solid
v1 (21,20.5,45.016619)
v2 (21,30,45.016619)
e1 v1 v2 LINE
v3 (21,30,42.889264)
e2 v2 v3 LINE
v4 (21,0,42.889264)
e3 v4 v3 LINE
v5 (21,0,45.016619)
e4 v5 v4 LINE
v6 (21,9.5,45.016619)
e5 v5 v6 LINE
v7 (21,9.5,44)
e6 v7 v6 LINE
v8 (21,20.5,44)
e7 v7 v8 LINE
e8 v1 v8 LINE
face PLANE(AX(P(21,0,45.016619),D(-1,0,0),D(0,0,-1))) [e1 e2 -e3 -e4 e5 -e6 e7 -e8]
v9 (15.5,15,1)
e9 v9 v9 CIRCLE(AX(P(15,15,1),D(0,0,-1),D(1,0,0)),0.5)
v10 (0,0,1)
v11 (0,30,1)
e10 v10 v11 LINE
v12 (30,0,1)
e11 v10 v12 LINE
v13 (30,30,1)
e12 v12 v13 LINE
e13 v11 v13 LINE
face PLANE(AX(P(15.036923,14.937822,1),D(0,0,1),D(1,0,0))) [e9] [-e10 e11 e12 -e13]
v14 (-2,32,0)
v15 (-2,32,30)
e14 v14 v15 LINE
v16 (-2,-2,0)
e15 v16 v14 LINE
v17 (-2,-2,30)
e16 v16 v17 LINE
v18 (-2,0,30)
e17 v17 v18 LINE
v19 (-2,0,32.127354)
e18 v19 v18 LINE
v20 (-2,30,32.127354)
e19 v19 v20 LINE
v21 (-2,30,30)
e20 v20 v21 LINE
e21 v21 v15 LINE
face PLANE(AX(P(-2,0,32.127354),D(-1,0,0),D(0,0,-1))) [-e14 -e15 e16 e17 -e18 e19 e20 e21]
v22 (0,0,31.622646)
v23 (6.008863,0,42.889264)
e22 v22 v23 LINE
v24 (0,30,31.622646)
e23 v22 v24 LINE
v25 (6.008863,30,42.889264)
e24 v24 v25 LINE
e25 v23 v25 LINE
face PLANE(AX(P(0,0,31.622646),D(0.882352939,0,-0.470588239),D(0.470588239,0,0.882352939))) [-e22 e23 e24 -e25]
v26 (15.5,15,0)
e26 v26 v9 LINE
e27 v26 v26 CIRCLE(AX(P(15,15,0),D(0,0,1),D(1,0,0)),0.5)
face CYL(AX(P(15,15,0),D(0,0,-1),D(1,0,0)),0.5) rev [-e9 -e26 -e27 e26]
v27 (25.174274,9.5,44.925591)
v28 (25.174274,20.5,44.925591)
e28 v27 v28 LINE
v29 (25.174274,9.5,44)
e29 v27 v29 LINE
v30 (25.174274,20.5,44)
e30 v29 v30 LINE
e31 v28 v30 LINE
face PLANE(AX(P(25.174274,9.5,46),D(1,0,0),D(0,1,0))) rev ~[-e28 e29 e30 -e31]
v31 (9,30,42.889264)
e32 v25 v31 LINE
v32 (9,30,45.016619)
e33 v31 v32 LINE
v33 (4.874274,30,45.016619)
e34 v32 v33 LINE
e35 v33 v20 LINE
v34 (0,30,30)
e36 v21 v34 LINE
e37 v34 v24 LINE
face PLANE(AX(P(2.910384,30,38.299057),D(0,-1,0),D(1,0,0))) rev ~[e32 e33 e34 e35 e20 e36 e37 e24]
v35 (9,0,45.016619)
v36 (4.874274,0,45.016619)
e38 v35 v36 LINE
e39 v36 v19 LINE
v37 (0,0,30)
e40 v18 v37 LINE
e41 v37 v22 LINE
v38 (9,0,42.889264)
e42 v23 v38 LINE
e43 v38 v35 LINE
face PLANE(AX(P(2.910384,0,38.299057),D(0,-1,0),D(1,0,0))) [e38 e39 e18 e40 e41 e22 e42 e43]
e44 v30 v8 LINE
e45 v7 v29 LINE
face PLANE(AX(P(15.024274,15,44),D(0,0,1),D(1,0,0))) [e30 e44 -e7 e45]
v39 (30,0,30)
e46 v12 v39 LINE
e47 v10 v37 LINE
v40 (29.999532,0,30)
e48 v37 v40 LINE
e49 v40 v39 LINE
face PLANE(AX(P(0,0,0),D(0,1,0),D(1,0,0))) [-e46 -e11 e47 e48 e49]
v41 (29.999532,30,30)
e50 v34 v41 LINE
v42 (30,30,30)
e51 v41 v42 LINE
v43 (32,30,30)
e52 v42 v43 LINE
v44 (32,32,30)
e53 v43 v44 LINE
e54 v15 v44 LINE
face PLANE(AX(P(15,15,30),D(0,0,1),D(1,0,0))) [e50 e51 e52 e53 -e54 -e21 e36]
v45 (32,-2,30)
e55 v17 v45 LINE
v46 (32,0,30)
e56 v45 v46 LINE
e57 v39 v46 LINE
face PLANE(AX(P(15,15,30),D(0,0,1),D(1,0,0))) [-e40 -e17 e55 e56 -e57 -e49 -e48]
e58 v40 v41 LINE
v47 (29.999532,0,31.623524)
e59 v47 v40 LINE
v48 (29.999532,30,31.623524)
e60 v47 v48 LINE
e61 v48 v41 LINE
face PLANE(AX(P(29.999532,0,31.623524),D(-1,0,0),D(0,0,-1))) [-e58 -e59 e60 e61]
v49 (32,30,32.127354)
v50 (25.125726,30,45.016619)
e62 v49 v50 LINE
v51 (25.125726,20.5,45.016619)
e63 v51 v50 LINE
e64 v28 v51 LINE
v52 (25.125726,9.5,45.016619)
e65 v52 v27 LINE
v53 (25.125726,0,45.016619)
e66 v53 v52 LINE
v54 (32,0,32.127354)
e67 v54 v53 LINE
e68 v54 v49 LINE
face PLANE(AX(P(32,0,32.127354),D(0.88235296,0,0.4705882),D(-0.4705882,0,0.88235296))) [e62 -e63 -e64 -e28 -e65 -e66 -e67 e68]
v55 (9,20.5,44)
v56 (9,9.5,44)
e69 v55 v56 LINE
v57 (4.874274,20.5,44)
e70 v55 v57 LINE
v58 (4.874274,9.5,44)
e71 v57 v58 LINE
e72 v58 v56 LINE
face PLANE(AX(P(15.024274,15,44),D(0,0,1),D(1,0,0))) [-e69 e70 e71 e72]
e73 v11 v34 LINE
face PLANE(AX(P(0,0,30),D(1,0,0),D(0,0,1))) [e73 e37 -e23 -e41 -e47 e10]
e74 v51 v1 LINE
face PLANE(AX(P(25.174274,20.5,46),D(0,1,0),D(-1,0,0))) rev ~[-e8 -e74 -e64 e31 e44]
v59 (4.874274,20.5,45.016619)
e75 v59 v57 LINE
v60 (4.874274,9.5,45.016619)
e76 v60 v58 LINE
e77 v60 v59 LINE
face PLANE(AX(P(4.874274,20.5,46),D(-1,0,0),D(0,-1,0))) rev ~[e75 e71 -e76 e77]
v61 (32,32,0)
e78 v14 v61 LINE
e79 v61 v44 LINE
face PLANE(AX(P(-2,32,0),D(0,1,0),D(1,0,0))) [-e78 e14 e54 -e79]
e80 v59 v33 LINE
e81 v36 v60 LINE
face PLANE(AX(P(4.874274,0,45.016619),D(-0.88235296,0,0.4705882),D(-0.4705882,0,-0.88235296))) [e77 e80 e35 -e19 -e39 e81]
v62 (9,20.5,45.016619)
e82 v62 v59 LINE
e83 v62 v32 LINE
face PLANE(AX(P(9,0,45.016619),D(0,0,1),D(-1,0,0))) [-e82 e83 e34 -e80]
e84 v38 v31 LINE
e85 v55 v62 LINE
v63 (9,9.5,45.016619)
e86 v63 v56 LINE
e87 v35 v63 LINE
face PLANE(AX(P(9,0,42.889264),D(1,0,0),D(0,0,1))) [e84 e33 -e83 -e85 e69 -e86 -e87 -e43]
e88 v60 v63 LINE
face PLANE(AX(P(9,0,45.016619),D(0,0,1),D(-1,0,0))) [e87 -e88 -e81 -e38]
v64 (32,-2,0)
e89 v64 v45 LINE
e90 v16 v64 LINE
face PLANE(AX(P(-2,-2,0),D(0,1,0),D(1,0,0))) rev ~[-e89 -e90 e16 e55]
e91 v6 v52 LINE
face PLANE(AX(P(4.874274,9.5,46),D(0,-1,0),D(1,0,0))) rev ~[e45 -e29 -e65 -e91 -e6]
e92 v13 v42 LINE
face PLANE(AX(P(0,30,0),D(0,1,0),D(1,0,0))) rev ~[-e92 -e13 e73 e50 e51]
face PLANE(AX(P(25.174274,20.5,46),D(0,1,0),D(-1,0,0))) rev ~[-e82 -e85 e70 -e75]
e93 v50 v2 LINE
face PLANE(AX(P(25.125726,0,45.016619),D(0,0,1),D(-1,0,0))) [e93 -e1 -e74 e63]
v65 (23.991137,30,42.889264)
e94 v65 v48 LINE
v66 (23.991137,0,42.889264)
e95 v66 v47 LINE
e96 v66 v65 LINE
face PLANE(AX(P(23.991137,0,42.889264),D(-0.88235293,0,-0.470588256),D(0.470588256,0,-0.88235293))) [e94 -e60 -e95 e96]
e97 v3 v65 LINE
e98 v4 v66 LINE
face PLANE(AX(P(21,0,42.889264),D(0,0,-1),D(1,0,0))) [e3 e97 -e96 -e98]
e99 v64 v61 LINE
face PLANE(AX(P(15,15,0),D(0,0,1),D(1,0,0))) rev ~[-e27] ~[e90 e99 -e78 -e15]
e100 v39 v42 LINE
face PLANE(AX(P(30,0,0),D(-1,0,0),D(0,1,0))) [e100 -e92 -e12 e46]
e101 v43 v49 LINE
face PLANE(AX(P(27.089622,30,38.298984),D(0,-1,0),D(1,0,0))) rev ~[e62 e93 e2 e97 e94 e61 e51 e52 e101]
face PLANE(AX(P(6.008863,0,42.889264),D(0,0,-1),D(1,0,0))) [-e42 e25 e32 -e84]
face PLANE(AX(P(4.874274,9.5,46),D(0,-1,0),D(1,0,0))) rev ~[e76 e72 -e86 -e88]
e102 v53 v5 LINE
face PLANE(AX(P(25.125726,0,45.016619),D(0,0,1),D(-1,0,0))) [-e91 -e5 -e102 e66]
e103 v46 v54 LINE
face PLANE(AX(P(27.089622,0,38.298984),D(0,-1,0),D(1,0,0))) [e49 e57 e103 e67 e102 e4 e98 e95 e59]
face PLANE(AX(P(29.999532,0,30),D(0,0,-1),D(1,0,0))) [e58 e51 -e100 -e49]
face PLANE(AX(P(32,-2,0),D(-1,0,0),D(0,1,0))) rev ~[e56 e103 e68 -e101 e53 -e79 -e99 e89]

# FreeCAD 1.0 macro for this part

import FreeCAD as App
import Part
import Sketcher


def add_polygon(sketch, points):
    """Adds a closed chain of lines whose ends are joined by coincident constraints."""
    first, n = sketch.GeometryCount, len(points)
    for a, b in zip(points, points[1:] + points[:1]):
        sketch.addGeometry(Part.LineSegment(App.Vector(*a, 0), App.Vector(*b, 0)), False)
    for i in range(n):
        sketch.addConstraint(Sketcher.Constraint("Coincident", first + i, 2, first + (i + 1) % n, 1))

doc = App.newDocument("Part")
params = doc.addObject("Spreadsheet::Sheet", "Params")
for row, (alias, value) in enumerate([
    ("sketch1_width", "34 mm"),
    ("sketch1_width2", "30 mm"),
    ("pad1_length", "30 mm"),
    ("pad2_length", "1 mm"),
    ("sketch3_diameter", "1 mm"),
    ("pocket1_length", "2 mm"),
    ("sketch4_width", "2 mm"),
    ("pad3_length", "30 mm"),
    ("sketch5_height", "11 mm"),
    ("sketch5_width", "20.3 mm"),
    ("pocket2_length", "2 mm"),
], start=1):
    params.set(f"A{row}", alias)
    params.set(f"B{row}", "=" + value)
    params.setAlias(f"B{row}", alias)

body = doc.addObject("PartDesign::Body", "Body")

# Sketch on XY plane
sketch1 = doc.addObject("Sketcher::SketchObject", "Sketch")
body.addObject(sketch1)
sketch1.AttachmentSupport = (doc.XY_Plane, [""])
sketch1.MapMode = "FlatFace"
add_polygon(sketch1, [(-2, 32), (-2, -2), (32, -2), (32, 32)])  # lines 0-3
add_polygon(sketch1, [(30, 0), (0, 0), (0, 30), (30, 30)])  # lines 4-7
sketch1.addConstraint(Sketcher.Constraint("Vertical", 0))
sketch1.addConstraint(Sketcher.Constraint("Horizontal", 1))
sketch1.addConstraint(Sketcher.Constraint("Vertical", 2))
sketch1.addConstraint(Sketcher.Constraint("Horizontal", 3))
sketch1.addConstraint(Sketcher.Constraint("Horizontal", 4))
sketch1.addConstraint(Sketcher.Constraint("Vertical", 5))
sketch1.addConstraint(Sketcher.Constraint("Horizontal", 6))
sketch1.addConstraint(Sketcher.Constraint("Vertical", 7))
sketch1.addConstraint(Sketcher.Constraint("Coincident", 4, 2, -1, 1))
sketch1.addConstraint(Sketcher.Constraint("Equal", 3, 0))
sketch1.addConstraint(Sketcher.Constraint("Equal", 6, 5))
sketch1.addConstraint(Sketcher.Constraint("DistanceX", 1, 1, 1, 2, 34.0))
sketch1.addConstraint(Sketcher.Constraint("DistanceX", 4, 2, 4, 1, 30.0))
sketch1.addConstraint(Sketcher.Constraint("DistanceX", 0, 2, -1, 1, 2.0))
sketch1.addConstraint(Sketcher.Constraint("DistanceY", 0, 2, -1, 1, 2.0))
sketch1.setExpression("Constraints[19]", "Params.sketch1_width")
sketch1.setExpression("Constraints[20]", "Params.sketch1_width2")
pad1 = doc.addObject("PartDesign::Pad", "Pad")
body.addObject(pad1)
pad1.Profile = sketch1
pad1.setExpression("Length", "Params.pad1_length")

# Sketch on XY plane
sketch2 = doc.addObject("Sketcher::SketchObject", "Sketch001")
body.addObject(sketch2)
sketch2.AttachmentSupport = (doc.XY_Plane, [""])
sketch2.MapMode = "FlatFace"
add_polygon(sketch2, [(-1.170261, 30.983938), (-1.170261, -1.108294), (31.244107, -1.108294), (31.244107, 30.983938)])  # lines 0-3
sketch2.addConstraint(Sketcher.Constraint("Vertical", 0))
sketch2.addConstraint(Sketcher.Constraint("Horizontal", 1))
sketch2.addConstraint(Sketcher.Constraint("Vertical", 2))
sketch2.addConstraint(Sketcher.Constraint("Horizontal", 3))
sketch2.addConstraint(Sketcher.Constraint("DistanceY", 0, 2, 0, 1, 32.092232))
sketch2.addConstraint(Sketcher.Constraint("DistanceX", 1, 1, 1, 2, 32.414368))
sketch2.addConstraint(Sketcher.Constraint("DistanceX", 0, 2, -1, 1, 1.170261))
sketch2.addConstraint(Sketcher.Constraint("DistanceY", 0, 2, -1, 1, 1.108294))
pad2 = doc.addObject("PartDesign::Pad", "Pad001")
body.addObject(pad2)
pad2.Profile = sketch2
pad2.setExpression("Length", "Params.pad2_length")

# Sketch on XY plane
sketch3 = doc.addObject("Sketcher::SketchObject", "Sketch002")
body.addObject(sketch3)
sketch3.AttachmentSupport = (doc.XY_Plane, [""])
sketch3.MapMode = "FlatFace"
sketch3.addGeometry(Part.Circle(App.Vector(15, 15, 0), App.Vector(0, 0, 1), 0.5), False)
sketch3.addConstraint(Sketcher.Constraint("Diameter", 0, 1.0))
sketch3.addConstraint(Sketcher.Constraint("DistanceX", -1, 1, 0, 3, 15.0))
sketch3.addConstraint(Sketcher.Constraint("DistanceY", -1, 1, 0, 3, 15.0))
sketch3.setExpression("Constraints[0]", "Params.sketch3_diameter")
pocket1 = doc.addObject("PartDesign::Pocket", "Pocket")
body.addObject(pocket1)
pocket1.Profile = sketch3
pocket1.setExpression("Length", "Params.pocket1_length")
pocket1.Reversed = True

# Sketch on XZ plane
sketch4 = doc.addObject("Sketcher::SketchObject", "Sketch003")
body.addObject(sketch4)
sketch4.AttachmentSupport = (doc.XZ_Plane, [""])
sketch4.MapMode = "FlatFace"
add_polygon(sketch4, [(-2, 32.127354), (-2, 30), (0, 30), (0, 31.622646), (6.008863, 42.889264), (9, 42.889264), (9, 45.016619), (4.874274, 45.016619)])  # lines 0-7
add_polygon(sketch4, [(32, 32.127354), (25.125726, 45.016619), (21, 45.016619), (21, 42.889264), (23.991137, 42.889264), (29.999532, 31.623524), (29.999532, 30), (32, 30)])  # lines 8-15
sketch4.addConstraint(Sketcher.Constraint("Vertical", 0))
sketch4.addConstraint(Sketcher.Constraint("Horizontal", 1))
sketch4.addConstraint(Sketcher.Constraint("Vertical", 2))
sketch4.addConstraint(Sketcher.Constraint("Horizontal", 4))
sketch4.addConstraint(Sketcher.Constraint("Vertical", 5))
sketch4.addConstraint(Sketcher.Constraint("Horizontal", 6))
sketch4.addConstraint(Sketcher.Constraint("Horizontal", 9))
sketch4.addConstraint(Sketcher.Constraint("Vertical", 10))
sketch4.addConstraint(Sketcher.Constraint("Horizontal", 11))
sketch4.addConstraint(Sketcher.Constraint("Vertical", 13))
sketch4.addConstraint(Sketcher.Constraint("Horizontal", 14))
sketch4.addConstraint(Sketcher.Constraint("Vertical", 15))
sketch4.addConstraint(Sketcher.Constraint("PointOnObject", 1, 2, -2))
sketch4.addConstraint(Sketcher.Constraint("Parallel", 3, 7))
sketch4.addConstraint(Sketcher.Constraint("Parallel", 8, 12))
sketch4.addConstraint(Sketcher.Constraint("Horizontal", 6, 2, 8, 2))
sketch4.addConstraint(Sketcher.Constraint("Horizontal", 4, 2, 10, 2))
sketch4.addConstraint(Sketcher.Constraint("Horizontal", 1, 2, 13, 2))
sketch4.addConstraint(Sketcher.Constraint("Horizontal", 7, 2, 15, 2))
sketch4.addConstraint(Sketcher.Constraint("Equal", 6, 9))
sketch4.addConstraint(Sketcher.Constraint("Equal", 4, 11))
sketch4.addConstraint(Sketcher.Constraint("Equal", 0, 5))
sketch4.addConstraint(Sketcher.Constraint("Equal", 7, 8))
sketch4.addConstraint(Sketcher.Constraint("DistanceX", 1, 1, 1, 2, 2.0))
sketch4.addConstraint(Sketcher.Constraint("DistanceY", -1, 1, 0, 2, 30.0))
sketch4.addConstraint(Sketcher.Constraint("DistanceX", -1, 1, 4, 2, 9.0))
sketch4.addConstraint(Sketcher.Constraint("DistanceX", -1, 1, 9, 2, 21.0))
sketch4.addConstraint(Sketcher.Constraint("DistanceX", 14, 1, 14, 2, 2.000468))
sketch4.addConstraint(Sketcher.Constraint("Distance", 12, 12.767839))
sketch4.addConstraint(Sketcher.Constraint("DistanceX", 4, 1, 4, 2, 2.991137))
sketch4.addConstraint(Sketcher.Constraint("DistanceX", 6, 2, 6, 1, 4.125726))
sketch4.addConstraint(Sketcher.Constraint("DistanceY", 0, 2, 0, 1, 2.127354))
sketch4.setExpression("Constraints[39]", "Params.sketch4_width")
pad3 = doc.addObject("PartDesign::Pad", "Pad002")
body.addObject(pad3)
pad3.Profile = sketch4
pad3.setExpression("Length", "Params.pad3_length")
pad3.Reversed = True

# Sketch on XY plane
sketch5 = doc.addObject("Sketcher::SketchObject", "Sketch004")
body.addObject(sketch5)
sketch5.AttachmentSupport = (doc.XY_Plane, [""])
sketch5.MapMode = "FlatFace"
sketch5.AttachmentOffset = App.Placement(App.Vector(0, 0, 46), App.Rotation())
add_polygon(sketch5, [(25.174274, 20.5), (4.874274, 20.5), (4.874274, 9.5), (25.174274, 9.5)])  # lines 0-3
sketch5.addConstraint(Sketcher.Constraint("Horizontal", 0))
sketch5.addConstraint(Sketcher.Constraint("Vertical", 1))
sketch5.addConstraint(Sketcher.Constraint("Horizontal", 2))
sketch5.addConstraint(Sketcher.Constraint("Vertical", 3))
sketch5.addConstraint(Sketcher.Constraint("DistanceY", 1, 2, 1, 1, 11.0))
sketch5.addConstraint(Sketcher.Constraint("DistanceX", 0, 2, 0, 1, 20.3))
sketch5.addConstraint(Sketcher.Constraint("DistanceY", -1, 1, 0, 2, 20.5))
sketch5.addConstraint(Sketcher.Constraint("DistanceX", -1, 1, 0, 2, 4.874274))
sketch5.setExpression("Constraints[8]", "Params.sketch5_height")
sketch5.setExpression("Constraints[9]", "Params.sketch5_width")
pocket2 = doc.addObject("PartDesign::Pocket", "Pocket001")
body.addObject(pocket2)
pocket2.Profile = sketch5
pocket2.setExpression("Length", "Params.pocket2_length")

doc.recompute()
